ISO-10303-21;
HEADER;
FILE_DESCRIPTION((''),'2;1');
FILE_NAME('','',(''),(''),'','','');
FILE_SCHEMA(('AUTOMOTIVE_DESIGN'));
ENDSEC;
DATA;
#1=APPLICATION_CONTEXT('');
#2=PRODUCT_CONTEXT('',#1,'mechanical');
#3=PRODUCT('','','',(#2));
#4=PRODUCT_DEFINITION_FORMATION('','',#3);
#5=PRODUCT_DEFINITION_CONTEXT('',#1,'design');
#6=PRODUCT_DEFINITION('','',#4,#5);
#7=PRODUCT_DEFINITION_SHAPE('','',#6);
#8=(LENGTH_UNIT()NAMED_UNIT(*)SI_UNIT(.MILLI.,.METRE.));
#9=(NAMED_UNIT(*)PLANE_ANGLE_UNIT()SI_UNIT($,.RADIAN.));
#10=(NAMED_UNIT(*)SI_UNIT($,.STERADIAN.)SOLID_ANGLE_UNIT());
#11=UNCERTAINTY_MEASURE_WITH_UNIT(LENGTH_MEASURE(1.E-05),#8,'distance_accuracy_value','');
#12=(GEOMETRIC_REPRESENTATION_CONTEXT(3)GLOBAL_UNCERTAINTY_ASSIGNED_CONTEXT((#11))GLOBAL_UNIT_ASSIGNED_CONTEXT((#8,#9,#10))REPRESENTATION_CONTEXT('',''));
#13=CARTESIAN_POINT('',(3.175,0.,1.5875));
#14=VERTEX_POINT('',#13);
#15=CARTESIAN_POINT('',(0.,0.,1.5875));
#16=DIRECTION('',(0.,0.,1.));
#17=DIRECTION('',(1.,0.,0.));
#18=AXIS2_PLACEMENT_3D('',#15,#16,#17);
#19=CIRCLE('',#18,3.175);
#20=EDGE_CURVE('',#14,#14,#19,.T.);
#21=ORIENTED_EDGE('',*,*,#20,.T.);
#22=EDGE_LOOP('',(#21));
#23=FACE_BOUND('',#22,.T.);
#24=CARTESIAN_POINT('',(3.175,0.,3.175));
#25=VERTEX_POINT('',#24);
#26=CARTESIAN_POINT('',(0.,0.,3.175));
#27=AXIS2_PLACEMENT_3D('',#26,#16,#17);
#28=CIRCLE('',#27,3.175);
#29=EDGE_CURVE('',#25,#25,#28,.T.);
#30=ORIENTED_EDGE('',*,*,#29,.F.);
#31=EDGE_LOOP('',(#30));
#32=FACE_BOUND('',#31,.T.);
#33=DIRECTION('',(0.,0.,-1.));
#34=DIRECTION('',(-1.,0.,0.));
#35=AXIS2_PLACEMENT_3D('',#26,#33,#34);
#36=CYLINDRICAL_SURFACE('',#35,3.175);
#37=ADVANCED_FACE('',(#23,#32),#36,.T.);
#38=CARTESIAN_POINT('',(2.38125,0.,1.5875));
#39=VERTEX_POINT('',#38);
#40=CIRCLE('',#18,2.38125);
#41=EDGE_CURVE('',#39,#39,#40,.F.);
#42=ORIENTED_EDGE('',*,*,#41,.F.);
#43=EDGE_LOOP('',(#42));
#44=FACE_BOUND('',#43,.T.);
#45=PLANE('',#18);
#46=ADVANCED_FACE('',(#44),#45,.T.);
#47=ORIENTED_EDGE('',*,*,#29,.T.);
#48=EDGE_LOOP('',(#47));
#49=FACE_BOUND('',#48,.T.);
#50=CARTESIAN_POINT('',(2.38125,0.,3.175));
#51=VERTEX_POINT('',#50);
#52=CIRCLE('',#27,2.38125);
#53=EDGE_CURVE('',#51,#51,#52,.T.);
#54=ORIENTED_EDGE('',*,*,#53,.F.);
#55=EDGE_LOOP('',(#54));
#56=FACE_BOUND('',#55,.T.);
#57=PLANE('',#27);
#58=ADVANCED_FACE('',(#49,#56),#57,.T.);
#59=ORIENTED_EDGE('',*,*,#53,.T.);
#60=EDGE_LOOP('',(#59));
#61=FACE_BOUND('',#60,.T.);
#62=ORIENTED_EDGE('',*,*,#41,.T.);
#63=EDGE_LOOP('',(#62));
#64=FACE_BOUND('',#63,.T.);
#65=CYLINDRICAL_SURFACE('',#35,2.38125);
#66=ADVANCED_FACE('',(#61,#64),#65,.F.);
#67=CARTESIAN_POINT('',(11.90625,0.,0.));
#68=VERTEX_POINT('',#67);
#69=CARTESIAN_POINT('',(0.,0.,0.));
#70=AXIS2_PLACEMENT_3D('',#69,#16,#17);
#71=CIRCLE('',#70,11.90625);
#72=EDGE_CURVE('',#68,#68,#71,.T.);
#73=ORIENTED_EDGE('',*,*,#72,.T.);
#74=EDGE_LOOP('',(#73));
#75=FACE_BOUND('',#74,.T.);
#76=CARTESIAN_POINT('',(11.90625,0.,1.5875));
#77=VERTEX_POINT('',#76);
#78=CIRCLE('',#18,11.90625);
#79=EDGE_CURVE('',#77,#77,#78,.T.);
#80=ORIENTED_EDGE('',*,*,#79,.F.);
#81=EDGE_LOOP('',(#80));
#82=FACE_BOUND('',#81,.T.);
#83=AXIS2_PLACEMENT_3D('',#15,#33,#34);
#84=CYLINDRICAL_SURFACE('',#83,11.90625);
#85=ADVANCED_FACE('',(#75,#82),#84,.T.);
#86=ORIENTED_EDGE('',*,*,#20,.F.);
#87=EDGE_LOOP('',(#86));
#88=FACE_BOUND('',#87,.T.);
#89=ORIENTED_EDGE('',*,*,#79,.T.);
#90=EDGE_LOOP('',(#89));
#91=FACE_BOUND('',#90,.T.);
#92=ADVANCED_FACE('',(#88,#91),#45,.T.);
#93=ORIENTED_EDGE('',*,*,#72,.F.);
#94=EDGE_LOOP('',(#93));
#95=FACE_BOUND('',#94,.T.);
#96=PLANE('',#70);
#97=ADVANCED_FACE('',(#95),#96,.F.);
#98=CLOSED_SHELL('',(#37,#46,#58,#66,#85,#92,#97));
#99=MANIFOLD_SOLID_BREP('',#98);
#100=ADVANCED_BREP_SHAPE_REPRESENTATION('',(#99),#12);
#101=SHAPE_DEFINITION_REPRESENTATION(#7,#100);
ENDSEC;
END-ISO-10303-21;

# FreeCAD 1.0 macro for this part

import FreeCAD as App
import Part
import Sketcher
from FreeCAD import Vector
Q = App.Units.Quantity

doc = App.newDocument("Part")
body = doc.addObject("PartDesign::Body", "Body")

# Sketch on XY plane
sketch1 = body.newObject("Sketcher::SketchObject", "Sketch")
sketch1.AttachmentSupport = (doc.getObject("XY_Plane"), [""])
sketch1.MapMode = "FlatFace"
sketch1.addGeometry(Part.Circle(Vector(0, 0, 0), Vector(0, 0, 1), 12), False)
sketch1.addConstraint([
    Sketcher.Constraint("Coincident", 0, 3, -1, 1),
    Sketcher.Constraint("Diameter", 0, Q("0.9375 in")),
])
pad1 = body.newObject("PartDesign::Pad", "Pad")
pad1.Profile = sketch1
pad1.Length = Q("0.0625 in")

# Sketch on XY plane
sketch2 = body.newObject("Sketcher::SketchObject", "Sketch001")
sketch2.AttachmentSupport = (doc.getObject("XY_Plane"), [""])
sketch2.MapMode = "FlatFace"
sketch2.AttachmentOffset = App.Placement(Vector(0, 0, 0.0625 * 25.4), App.Rotation())
sketch2.addGeometry([
    Part.Circle(Vector(0, 0, 0), Vector(0, 0, 1), 3.2),
    Part.Circle(Vector(0, 0, 0), Vector(0, 0, 1), 2.4),
], False)
sketch2.addConstraint([
    Sketcher.Constraint("Coincident", 0, 3, -1, 1),
    Sketcher.Constraint("Coincident", 1, 3, -1, 1),
    Sketcher.Constraint("Diameter", 0, Q("0.25 in")),
    Sketcher.Constraint("Diameter", 1, Q("0.1875 in")),
])
pad2 = body.newObject("PartDesign::Pad", "Pad001")
pad2.Profile = sketch2
pad2.Length = Q("0.0625 in")

doc.recompute()
